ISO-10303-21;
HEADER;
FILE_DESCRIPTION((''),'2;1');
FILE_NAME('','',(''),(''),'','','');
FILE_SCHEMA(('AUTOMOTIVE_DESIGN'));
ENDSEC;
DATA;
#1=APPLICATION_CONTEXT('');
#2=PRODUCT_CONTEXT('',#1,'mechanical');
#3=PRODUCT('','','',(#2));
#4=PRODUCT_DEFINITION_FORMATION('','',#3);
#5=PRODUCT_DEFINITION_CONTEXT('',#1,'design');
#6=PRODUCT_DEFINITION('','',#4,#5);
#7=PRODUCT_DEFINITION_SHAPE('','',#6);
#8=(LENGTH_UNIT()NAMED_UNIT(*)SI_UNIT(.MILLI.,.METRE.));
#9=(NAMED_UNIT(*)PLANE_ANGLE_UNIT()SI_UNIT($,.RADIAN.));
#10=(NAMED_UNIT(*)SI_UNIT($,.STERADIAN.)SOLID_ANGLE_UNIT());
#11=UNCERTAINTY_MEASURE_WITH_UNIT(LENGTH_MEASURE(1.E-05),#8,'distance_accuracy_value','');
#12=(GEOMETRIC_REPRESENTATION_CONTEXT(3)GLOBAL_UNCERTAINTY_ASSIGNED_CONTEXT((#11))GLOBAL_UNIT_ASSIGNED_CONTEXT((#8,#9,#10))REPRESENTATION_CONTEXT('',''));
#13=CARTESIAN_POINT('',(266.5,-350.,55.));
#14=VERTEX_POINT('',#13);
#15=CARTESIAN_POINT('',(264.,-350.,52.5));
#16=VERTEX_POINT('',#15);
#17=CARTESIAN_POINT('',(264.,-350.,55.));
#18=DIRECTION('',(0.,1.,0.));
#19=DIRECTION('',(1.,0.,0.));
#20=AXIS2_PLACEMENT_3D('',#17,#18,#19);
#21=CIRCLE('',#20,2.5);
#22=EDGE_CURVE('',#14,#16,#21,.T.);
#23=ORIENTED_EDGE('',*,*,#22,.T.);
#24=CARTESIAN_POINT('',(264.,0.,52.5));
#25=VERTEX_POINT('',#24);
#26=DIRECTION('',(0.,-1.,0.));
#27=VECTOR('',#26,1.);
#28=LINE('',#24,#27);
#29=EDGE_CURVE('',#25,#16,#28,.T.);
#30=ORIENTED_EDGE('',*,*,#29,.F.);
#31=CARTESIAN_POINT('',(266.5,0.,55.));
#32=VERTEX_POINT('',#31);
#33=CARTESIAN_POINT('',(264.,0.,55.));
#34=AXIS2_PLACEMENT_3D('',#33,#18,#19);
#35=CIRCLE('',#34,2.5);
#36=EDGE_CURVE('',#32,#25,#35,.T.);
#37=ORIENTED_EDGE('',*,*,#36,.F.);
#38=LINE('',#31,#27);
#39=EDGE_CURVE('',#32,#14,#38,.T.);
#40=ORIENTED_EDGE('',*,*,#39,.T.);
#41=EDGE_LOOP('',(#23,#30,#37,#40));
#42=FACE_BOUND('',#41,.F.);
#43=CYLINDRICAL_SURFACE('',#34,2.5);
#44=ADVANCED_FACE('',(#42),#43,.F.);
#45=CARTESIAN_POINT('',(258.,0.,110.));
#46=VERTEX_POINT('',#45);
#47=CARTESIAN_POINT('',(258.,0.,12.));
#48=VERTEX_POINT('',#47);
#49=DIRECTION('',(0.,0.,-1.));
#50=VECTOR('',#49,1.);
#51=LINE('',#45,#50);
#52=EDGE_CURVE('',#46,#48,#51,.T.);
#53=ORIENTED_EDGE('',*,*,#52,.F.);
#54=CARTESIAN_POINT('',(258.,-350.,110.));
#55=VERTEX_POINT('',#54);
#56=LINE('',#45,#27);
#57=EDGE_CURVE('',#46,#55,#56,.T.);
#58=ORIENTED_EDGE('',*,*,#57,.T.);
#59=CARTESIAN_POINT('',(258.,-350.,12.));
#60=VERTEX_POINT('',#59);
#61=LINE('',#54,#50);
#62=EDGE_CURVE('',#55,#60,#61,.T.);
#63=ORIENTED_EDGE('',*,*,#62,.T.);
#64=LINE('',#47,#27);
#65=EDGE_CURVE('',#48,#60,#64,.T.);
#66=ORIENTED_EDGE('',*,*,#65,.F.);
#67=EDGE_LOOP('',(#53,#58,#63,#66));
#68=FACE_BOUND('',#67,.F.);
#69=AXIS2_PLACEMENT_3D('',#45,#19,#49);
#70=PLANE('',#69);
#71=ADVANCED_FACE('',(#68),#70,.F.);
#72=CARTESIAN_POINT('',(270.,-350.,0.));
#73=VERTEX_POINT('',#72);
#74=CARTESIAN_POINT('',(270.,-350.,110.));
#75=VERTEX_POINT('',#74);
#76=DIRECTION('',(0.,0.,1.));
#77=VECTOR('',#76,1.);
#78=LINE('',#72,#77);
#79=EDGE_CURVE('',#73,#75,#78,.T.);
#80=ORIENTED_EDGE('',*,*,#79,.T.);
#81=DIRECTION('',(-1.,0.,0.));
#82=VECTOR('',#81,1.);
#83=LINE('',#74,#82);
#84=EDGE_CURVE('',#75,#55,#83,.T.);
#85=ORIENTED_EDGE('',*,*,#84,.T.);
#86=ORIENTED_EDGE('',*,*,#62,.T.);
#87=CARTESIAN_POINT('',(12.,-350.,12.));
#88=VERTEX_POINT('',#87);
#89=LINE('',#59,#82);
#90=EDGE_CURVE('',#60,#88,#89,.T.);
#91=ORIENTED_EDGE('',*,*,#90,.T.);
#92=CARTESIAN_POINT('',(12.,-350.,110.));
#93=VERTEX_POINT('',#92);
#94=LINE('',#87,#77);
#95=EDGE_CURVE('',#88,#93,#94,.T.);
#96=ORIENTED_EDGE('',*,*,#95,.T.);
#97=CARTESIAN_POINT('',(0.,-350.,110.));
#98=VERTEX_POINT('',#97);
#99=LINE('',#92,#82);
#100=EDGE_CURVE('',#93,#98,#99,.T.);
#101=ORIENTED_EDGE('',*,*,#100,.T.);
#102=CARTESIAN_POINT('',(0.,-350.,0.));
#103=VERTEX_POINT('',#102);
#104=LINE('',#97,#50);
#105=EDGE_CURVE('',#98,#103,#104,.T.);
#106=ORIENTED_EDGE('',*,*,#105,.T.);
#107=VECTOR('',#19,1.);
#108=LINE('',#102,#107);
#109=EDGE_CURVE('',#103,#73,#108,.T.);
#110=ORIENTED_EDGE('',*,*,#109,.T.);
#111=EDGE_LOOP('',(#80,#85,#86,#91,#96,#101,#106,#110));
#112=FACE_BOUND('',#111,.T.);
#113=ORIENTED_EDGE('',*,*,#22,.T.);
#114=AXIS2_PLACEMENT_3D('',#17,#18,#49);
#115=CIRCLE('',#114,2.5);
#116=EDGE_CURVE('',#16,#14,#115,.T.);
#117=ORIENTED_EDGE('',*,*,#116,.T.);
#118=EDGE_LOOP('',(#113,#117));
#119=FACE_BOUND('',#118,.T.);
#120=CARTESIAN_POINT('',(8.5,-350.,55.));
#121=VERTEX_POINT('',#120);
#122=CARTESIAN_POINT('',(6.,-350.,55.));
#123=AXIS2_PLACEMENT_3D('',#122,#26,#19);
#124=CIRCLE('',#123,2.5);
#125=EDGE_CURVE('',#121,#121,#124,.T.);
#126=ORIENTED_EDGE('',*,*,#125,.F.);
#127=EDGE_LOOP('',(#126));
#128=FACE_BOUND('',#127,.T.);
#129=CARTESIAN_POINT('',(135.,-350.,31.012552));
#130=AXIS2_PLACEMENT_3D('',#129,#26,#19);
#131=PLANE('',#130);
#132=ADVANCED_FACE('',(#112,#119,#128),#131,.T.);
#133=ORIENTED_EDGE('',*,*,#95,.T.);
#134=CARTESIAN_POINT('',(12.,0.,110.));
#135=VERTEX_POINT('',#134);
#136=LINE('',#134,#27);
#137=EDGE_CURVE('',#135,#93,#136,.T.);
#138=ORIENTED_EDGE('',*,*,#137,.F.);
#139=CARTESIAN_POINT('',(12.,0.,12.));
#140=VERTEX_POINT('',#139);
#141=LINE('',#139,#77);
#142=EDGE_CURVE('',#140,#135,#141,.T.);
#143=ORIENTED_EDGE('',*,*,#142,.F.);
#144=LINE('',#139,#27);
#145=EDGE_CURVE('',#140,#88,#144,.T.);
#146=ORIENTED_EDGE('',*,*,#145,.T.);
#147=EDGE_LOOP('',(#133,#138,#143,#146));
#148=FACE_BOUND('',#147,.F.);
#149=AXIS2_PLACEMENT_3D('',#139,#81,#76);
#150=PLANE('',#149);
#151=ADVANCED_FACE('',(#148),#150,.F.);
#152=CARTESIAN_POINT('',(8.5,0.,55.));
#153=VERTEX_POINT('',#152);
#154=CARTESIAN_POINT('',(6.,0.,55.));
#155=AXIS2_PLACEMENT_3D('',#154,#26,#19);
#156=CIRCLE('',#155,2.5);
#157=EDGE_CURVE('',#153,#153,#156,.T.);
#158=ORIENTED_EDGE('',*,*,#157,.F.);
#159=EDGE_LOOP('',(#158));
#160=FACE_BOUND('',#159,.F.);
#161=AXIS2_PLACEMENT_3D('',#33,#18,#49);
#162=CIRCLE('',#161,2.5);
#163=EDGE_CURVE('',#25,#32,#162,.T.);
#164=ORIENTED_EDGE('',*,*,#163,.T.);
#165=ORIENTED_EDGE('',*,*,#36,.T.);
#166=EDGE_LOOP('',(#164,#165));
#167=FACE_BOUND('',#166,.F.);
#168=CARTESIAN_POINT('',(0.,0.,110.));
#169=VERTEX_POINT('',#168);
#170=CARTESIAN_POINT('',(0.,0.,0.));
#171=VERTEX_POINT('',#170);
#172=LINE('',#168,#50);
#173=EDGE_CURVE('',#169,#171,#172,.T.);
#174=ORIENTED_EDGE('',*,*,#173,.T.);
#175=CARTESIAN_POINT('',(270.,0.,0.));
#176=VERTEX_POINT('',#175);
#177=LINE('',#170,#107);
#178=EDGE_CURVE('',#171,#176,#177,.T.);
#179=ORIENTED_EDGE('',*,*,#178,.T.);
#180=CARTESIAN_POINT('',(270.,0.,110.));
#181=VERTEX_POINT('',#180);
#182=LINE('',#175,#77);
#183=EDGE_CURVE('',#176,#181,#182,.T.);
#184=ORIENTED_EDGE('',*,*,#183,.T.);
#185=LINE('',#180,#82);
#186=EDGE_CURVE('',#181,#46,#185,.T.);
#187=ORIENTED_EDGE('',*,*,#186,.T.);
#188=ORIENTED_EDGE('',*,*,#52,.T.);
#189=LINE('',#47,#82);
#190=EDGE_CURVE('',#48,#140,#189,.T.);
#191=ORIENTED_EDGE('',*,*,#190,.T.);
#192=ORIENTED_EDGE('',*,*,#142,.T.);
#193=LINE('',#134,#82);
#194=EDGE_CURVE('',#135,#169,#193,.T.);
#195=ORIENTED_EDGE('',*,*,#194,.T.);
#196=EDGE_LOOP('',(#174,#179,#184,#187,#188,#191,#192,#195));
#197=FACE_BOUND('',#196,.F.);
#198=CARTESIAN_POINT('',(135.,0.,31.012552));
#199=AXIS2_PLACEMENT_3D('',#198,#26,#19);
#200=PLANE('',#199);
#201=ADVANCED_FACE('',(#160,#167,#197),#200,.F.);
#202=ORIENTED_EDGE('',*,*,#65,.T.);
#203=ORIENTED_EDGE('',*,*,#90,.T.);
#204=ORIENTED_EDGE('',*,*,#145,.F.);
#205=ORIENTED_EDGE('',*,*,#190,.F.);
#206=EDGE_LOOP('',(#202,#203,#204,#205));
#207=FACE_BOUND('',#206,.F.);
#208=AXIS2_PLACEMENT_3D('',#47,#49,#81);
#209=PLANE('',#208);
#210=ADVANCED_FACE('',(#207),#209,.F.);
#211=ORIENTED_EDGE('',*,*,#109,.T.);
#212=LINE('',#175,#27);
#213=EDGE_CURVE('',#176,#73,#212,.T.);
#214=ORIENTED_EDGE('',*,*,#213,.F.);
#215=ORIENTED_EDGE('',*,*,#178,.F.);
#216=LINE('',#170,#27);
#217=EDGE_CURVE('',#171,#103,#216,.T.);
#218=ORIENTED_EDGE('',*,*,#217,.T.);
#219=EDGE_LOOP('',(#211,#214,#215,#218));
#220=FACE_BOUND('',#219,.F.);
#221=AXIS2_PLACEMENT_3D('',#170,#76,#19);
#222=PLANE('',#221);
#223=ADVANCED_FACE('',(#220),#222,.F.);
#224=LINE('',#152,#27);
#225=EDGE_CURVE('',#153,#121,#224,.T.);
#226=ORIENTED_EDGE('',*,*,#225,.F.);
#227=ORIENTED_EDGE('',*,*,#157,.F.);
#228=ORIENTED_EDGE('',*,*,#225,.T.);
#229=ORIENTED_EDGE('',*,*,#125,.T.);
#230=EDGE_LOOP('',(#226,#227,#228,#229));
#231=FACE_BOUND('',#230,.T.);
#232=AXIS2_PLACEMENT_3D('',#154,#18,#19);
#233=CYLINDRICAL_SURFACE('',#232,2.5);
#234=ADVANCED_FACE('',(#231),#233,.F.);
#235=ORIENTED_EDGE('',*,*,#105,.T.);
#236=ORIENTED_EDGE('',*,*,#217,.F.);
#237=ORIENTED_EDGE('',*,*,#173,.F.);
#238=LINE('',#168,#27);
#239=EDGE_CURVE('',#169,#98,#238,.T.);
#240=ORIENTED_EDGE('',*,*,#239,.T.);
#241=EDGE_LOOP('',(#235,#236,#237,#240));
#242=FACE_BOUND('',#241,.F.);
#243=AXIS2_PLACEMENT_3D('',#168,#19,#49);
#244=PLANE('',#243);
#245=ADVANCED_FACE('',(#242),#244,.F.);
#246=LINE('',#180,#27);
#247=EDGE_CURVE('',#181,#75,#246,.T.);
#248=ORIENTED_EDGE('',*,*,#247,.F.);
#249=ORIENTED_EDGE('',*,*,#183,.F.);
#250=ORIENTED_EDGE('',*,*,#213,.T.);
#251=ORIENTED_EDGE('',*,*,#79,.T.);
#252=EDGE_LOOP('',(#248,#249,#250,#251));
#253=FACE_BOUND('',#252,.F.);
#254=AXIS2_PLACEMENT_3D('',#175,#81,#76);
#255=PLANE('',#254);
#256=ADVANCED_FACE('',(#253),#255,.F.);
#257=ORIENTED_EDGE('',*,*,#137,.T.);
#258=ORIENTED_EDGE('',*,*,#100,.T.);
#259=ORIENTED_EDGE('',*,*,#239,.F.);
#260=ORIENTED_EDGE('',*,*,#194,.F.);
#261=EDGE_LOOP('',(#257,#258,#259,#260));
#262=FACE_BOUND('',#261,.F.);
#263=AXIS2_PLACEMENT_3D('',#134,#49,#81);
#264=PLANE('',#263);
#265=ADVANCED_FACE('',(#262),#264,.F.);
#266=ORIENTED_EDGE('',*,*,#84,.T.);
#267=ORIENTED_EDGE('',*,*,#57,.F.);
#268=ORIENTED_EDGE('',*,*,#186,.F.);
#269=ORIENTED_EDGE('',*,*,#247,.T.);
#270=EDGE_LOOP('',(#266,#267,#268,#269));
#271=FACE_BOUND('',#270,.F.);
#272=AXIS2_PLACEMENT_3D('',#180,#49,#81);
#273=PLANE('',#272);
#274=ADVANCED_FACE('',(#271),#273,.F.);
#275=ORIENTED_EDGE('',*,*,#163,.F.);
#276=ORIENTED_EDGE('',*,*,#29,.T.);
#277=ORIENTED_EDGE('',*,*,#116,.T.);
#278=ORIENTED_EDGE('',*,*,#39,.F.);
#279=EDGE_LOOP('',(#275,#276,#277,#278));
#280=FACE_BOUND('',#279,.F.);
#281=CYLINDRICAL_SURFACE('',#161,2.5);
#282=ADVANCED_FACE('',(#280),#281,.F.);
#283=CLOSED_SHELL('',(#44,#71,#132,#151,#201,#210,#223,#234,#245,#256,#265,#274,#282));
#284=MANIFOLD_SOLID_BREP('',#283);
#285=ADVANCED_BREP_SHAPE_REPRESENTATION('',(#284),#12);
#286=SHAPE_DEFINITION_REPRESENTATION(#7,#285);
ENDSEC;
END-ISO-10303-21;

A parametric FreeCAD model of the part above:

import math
import FreeCAD as App
import Part
import Sketcher
Q = App.Units.Quantity

doc = App.newDocument("Part")
body = doc.addObject("PartDesign::Body", "Body")

sketch1 = body.newObject("Sketcher::SketchObject", "Sketch")
sketch1.AttachmentSupport = (doc.getObject("XZ_Plane"), [""])
sketch1.MapMode = "FlatFace"
sketch1.addGeometry(Part.LineSegment(App.Vector(0, 110, 0), App.Vector(0, 0, 0)), False)
sketch1.addGeometry(Part.LineSegment(App.Vector(0, 0, 0), App.Vector(270, 0, 0)), False)
sketch1.addGeometry(Part.LineSegment(App.Vector(270, 0, 0), App.Vector(270, 110, 0)), False)
sketch1.addGeometry(Part.LineSegment(App.Vector(270, 110, 0), App.Vector(258, 110, 0)), False)
sketch1.addGeometry(Part.LineSegment(App.Vector(258, 110, 0), App.Vector(258, 12, 0)), False)
sketch1.addGeometry(Part.LineSegment(App.Vector(258, 12, 0), App.Vector(12, 12, 0)), False)
sketch1.addGeometry(Part.LineSegment(App.Vector(12, 12, 0), App.Vector(12, 110, 0)), False)
sketch1.addGeometry(Part.LineSegment(App.Vector(12, 110, 0), App.Vector(0, 110, 0)), False)
sketch1.addGeometry(Part.Circle(App.Vector(6, 55, 0), App.Vector(0, 0, 1), 2.5), False)
sketch1.addGeometry(Part.ArcOfCircle(Part.Circle(App.Vector(264, 55, 0), App.Vector(0, 0, 1), 2.5), math.radians(-90), math.radians(0)), False)
sketch1.addGeometry(Part.ArcOfCircle(Part.Circle(App.Vector(264, 55, 0), App.Vector(0, 0, 1), 2.5), math.radians(0), math.radians(270)), False)
sketch1.addConstraint(Sketcher.Constraint("Coincident", 0, 2, 1, 1))
sketch1.addConstraint(Sketcher.Constraint("Coincident", 1, 2, 2, 1))
sketch1.addConstraint(Sketcher.Constraint("Coincident", 2, 2, 3, 1))
sketch1.addConstraint(Sketcher.Constraint("Coincident", 3, 2, 4, 1))
sketch1.addConstraint(Sketcher.Constraint("Coincident", 4, 2, 5, 1))
sketch1.addConstraint(Sketcher.Constraint("Coincident", 5, 2, 6, 1))
sketch1.addConstraint(Sketcher.Constraint("Coincident", 6, 2, 7, 1))
sketch1.addConstraint(Sketcher.Constraint("Coincident", 7, 2, 0, 1))
sketch1.addConstraint(Sketcher.Constraint("Tangent", 9, 1, 10, 2))
sketch1.addConstraint(Sketcher.Constraint("Coincident", 10, 1, 9, 2))
sketch1.addConstraint(Sketcher.Constraint("Vertical", 0))
sketch1.addConstraint(Sketcher.Constraint("Horizontal", 1))
sketch1.addConstraint(Sketcher.Constraint("Vertical", 2))
sketch1.addConstraint(Sketcher.Constraint("Horizontal", 3))
sketch1.addConstraint(Sketcher.Constraint("Vertical", 4))
sketch1.addConstraint(Sketcher.Constraint("Horizontal", 5))
sketch1.addConstraint(Sketcher.Constraint("Vertical", 6))
sketch1.addConstraint(Sketcher.Constraint("Horizontal", 7))
sketch1.addConstraint(Sketcher.Constraint("Coincident", 0, 2, -1, 1))
sketch1.addConstraint(Sketcher.Constraint("Equal", 8, 9))
sketch1.addConstraint(Sketcher.Constraint("Horizontal", 8, 3, 9, 3))
sketch1.addConstraint(Sketcher.Constraint("Horizontal", 3, 2, 6, 2))
sketch1.addConstraint(Sketcher.Constraint("Horizontal", 9, 3, 10, 1))
sketch1.addConstraint(Sketcher.Constraint("Vertical", 10, 3, 9, 1))
sketch1.addConstraint(Sketcher.Constraint("Equal", 3, 7))
sketch1.addConstraint(Sketcher.Constraint("Diameter", 8, Q("5 mm")))
sketch1.addConstraint(Sketcher.Constraint("DistanceX", 1, 1, 1, 2, Q("270 mm")))
sketch1.addConstraint(Sketcher.Constraint("DistanceX", 3, 2, 3, 1, Q("12 mm")))
sketch1.addConstraint(Sketcher.Constraint("DistanceY", 0, 2, 0, 1, Q("110 mm")))
sketch1.addConstraint(Sketcher.Constraint("DistanceY", 4, 2, 4, 1, Q("98 mm")))
sketch1.addConstraint(Sketcher.Constraint("DistanceX", -1, 1, 8, 3, Q("6 mm")))
sketch1.addConstraint(Sketcher.Constraint("DistanceY", -1, 1, 8, 3, Q("55 mm")))
sketch1.addConstraint(Sketcher.Constraint("DistanceX", -1, 1, 9, 3, Q("264 mm")))
pad1 = body.newObject("PartDesign::Pad", "Pad")
pad1.Profile = sketch1
pad1.Length = 350

doc.recompute()
